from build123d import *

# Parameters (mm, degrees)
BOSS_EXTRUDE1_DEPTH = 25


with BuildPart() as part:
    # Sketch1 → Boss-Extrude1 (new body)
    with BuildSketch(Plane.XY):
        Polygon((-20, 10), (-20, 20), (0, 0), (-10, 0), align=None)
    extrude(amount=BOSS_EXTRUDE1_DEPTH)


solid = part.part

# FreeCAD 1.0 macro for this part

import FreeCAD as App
import Part
import Sketcher
from FreeCAD import Vector

doc = App.newDocument("Part")
body = doc.addObject("PartDesign::Body", "Body")

sketch1 = body.newObject("Sketcher::SketchObject", "Sketch")
sketch1.AttachmentSupport = (doc.getObject("XY_Plane"), [""])
sketch1.MapMode = "FlatFace"
sketch1.addGeometry([
    Part.LineSegment(Vector(-20, 20, 0), Vector(-20, 10, 0)),
    Part.LineSegment(Vector(-20, 10, 0), Vector(-10, 0, 0)),
    Part.LineSegment(Vector(-10, 0, 0), Vector(0, 0, 0)),
    Part.LineSegment(Vector(0, 0, 0), Vector(-20, 20, 0)),
], False)
sketch1.addConstraint([
    Sketcher.Constraint("Coincident", 0, 2, 1, 1),
    Sketcher.Constraint("Coincident", 1, 2, 2, 1),
    Sketcher.Constraint("Coincident", 2, 2, 3, 1),
    Sketcher.Constraint("Coincident", 3, 2, 0, 1),
    Sketcher.Constraint("Vertical", 0),
    Sketcher.Constraint("Horizontal", 2),
    Sketcher.Constraint("Coincident", 2, 2, -1, 1),
    Sketcher.Constraint("Parallel", 1, 3),
    Sketcher.Constraint("Equal", 2, 0),
    Sketcher.Constraint("DistanceX", 2, 1, 2, 2, 10.0),
    Sketcher.Constraint("DistanceX", 0, 2, -1, 1, 20.0),
])
pad1 = body.newObject("PartDesign::Pad", "Pad")
pad1.Profile = sketch1
pad1.Length = 25

doc.recompute()
